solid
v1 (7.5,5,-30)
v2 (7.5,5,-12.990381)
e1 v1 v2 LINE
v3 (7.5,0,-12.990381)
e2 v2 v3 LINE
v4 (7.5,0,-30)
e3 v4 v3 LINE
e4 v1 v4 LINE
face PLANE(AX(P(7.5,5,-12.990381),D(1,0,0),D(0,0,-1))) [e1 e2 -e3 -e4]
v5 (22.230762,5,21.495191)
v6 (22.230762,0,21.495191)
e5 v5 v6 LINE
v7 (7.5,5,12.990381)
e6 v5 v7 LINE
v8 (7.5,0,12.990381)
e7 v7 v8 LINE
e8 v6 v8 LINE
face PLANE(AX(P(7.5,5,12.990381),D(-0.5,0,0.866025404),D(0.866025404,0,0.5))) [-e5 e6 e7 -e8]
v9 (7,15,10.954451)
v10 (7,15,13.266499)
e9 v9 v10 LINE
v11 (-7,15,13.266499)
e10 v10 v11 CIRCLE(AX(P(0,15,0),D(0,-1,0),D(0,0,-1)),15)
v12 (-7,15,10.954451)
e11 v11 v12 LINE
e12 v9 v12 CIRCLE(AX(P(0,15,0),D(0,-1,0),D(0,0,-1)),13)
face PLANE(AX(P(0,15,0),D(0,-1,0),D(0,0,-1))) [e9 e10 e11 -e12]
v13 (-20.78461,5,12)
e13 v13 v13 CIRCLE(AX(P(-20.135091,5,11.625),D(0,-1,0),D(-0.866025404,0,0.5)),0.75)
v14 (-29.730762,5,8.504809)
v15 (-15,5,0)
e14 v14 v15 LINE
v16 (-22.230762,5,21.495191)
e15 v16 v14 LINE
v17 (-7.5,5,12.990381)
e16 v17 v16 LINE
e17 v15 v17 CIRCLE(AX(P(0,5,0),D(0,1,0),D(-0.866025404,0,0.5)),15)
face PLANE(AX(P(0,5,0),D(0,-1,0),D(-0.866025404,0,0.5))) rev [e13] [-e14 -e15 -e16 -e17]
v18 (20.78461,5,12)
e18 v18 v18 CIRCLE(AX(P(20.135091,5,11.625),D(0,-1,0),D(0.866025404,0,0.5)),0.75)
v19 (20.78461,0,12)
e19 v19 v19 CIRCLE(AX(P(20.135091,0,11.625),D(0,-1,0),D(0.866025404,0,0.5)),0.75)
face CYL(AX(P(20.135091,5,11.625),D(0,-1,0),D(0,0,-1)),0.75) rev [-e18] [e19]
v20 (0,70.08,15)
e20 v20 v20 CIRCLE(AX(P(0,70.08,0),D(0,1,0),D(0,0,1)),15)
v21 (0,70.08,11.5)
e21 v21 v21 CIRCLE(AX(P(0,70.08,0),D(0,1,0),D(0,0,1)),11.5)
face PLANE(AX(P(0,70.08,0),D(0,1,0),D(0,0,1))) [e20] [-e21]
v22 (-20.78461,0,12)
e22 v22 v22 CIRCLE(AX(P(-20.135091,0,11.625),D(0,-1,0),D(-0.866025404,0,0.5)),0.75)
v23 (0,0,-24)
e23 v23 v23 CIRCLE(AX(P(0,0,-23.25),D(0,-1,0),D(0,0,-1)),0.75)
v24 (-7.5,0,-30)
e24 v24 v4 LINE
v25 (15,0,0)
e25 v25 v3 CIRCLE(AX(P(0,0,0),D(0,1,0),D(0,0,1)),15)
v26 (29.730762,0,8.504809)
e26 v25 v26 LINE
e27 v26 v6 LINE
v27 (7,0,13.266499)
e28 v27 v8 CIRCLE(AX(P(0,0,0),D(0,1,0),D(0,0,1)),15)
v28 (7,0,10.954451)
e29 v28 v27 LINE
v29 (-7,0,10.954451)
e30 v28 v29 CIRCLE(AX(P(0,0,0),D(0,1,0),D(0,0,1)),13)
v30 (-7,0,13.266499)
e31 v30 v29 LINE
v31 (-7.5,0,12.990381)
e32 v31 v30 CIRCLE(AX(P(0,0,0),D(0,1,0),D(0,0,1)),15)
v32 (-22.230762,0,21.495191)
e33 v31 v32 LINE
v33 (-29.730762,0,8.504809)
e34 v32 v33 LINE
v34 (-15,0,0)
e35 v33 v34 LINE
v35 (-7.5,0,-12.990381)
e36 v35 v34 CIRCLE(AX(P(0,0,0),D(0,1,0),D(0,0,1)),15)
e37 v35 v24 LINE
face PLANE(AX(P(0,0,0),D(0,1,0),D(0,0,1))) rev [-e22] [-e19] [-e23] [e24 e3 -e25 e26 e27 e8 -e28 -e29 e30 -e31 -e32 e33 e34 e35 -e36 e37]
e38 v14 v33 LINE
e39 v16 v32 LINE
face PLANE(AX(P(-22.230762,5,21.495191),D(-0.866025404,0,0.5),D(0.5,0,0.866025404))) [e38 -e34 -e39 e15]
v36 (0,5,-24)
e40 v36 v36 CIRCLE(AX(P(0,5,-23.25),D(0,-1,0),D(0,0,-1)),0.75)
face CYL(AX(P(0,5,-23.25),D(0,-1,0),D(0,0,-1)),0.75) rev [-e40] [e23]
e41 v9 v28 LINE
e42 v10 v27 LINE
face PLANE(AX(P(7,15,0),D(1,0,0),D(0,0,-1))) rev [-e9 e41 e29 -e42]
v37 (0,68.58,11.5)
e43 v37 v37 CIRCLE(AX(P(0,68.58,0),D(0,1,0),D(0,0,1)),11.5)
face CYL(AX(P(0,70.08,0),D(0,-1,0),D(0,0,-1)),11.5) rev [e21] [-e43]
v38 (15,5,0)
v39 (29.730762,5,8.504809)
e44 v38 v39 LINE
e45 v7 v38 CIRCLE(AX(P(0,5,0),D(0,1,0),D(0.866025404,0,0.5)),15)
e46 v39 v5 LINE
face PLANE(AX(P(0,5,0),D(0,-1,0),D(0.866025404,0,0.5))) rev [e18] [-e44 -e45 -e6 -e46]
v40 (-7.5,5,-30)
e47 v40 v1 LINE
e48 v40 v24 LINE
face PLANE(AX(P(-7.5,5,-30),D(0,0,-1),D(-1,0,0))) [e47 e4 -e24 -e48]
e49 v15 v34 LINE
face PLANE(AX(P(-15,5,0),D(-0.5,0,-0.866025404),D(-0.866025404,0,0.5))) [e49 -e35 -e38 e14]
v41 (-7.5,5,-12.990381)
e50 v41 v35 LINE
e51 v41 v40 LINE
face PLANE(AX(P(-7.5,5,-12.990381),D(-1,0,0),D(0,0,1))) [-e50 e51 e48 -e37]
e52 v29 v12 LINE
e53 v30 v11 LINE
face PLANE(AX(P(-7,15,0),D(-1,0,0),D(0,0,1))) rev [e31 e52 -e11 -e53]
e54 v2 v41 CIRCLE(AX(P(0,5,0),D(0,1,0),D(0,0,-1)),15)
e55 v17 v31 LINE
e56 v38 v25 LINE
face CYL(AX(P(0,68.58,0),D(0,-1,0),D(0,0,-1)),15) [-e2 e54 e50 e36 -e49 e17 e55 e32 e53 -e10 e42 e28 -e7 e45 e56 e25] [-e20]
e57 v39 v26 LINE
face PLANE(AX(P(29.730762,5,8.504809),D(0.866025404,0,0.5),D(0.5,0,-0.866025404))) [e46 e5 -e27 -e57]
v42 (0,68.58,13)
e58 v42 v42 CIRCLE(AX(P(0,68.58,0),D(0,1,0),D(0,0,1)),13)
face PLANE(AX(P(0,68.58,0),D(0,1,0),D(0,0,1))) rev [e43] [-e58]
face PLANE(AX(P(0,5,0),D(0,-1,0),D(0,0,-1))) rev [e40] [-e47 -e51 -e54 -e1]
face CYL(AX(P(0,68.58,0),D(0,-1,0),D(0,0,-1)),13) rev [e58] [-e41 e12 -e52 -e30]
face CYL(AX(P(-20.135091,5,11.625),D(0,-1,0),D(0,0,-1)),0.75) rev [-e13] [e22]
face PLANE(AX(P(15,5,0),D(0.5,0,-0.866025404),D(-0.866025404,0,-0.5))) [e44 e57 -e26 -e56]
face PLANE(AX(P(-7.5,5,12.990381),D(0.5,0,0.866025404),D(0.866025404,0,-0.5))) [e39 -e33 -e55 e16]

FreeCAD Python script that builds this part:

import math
import FreeCAD as App
import Part
import Sketcher


def add_polygon(sketch, points):
    """Adds a closed chain of lines whose ends are joined by coincident constraints."""
    first, n = sketch.GeometryCount, len(points)
    for a, b in zip(points, points[1:] + points[:1]):
        sketch.addGeometry(Part.LineSegment(App.Vector(*a, 0), App.Vector(*b, 0)), False)
    for i in range(n):
        sketch.addConstraint(Sketcher.Constraint("Coincident", first + i, 2, first + (i + 1) % n, 1))

doc = App.newDocument("Part")
body = doc.addObject("PartDesign::Body", "Body")

# Sketch on XZ plane
sketch1 = doc.addObject("Sketcher::SketchObject", "Sketch")
body.addObject(sketch1)
sketch1.AttachmentSupport = (doc.XZ_Plane, [""])
sketch1.MapMode = "FlatFace"
sketch1.addGeometry([
    Part.Circle(App.Vector(0, 0, 0), App.Vector(0, 0, 1), 15),
    Part.Circle(App.Vector(0, 0, 0), App.Vector(0, 0, 1), 13),
], False)
sketch1.addConstraint([
    Sketcher.Constraint("Coincident", 0, 3, -1, 1),
    Sketcher.Constraint("Coincident", 1, 3, -1, 1),
    Sketcher.Constraint("Diameter", 0, 30.0),
    Sketcher.Constraint("Diameter", 1, 26.0),
])
pad1 = doc.addObject("PartDesign::Pad", "Pad")
body.addObject(pad1)
pad1.Profile = sketch1
pad1.Length = 68.58
pad1.Reversed = True

# Sketch on XZ plane
sketch2 = doc.addObject("Sketcher::SketchObject", "Sketch001")
body.addObject(sketch2)
sketch2.AttachmentSupport = (doc.XZ_Plane, [""])
sketch2.MapMode = "FlatFace"
sketch2.AttachmentOffset = App.Placement(App.Vector(0, 0, -68.58), App.Rotation())
sketch2.addGeometry([
    Part.Circle(App.Vector(0, 0, 0), App.Vector(0, 0, 1), 15),
    Part.Circle(App.Vector(0, 0, 0), App.Vector(0, 0, 1), 12),
], False)
sketch2.addConstraint([
    Sketcher.Constraint("Coincident", 0, 3, -1, 1),
    Sketcher.Constraint("Coincident", 1, 3, -1, 1),
    Sketcher.Constraint("Diameter", 0, 30.0),
    Sketcher.Constraint("Diameter", 1, 23.0),
])
pad2 = doc.addObject("PartDesign::Pad", "Pad001")
body.addObject(pad2)
pad2.Profile = sketch2
pad2.Length = 1.5
pad2.Reversed = True

# Sketch on XZ plane
sketch3 = doc.addObject("Sketcher::SketchObject", "Sketch002")
body.addObject(sketch3)
sketch3.AttachmentSupport = (doc.XZ_Plane, [""])
sketch3.MapMode = "FlatFace"
add_polygon(sketch3, [(-7, 16), (-7, 0), (7, 0), (7, 16)])  # lines 0-3
sketch3.addConstraint([
    Sketcher.Constraint("Vertical", 0),
    Sketcher.Constraint("Horizontal", 1),
    Sketcher.Constraint("Vertical", 2),
    Sketcher.Constraint("Horizontal", 3),
    Sketcher.Constraint("Symmetric", 0, 2, 1, 2, -1, 1),
    Sketcher.Constraint("DistanceX", 1, 1, 1, 2, 14.0),
    Sketcher.Constraint("DistanceY", 0, 2, 0, 1, 15.59137),
])
pocket1 = doc.addObject("PartDesign::Pocket", "Pocket")
body.addObject(pocket1)
pocket1.Profile = sketch3
pocket1.Length = 15

# Sketch on XZ plane
sketch4 = doc.addObject("Sketcher::SketchObject", "Sketch003")
body.addObject(sketch4)
sketch4.AttachmentSupport = (doc.XZ_Plane, [""])
sketch4.MapMode = "FlatFace"
sketch4.addGeometry([
    Part.LineSegment(App.Vector(-7.5, -13, 0), App.Vector(-7.5, -30, 0)),  # 0
    Part.LineSegment(App.Vector(-7.5, -30, 0), App.Vector(7.5, -30, 0)),  # 1
    Part.LineSegment(App.Vector(7.5, -30, 0), App.Vector(7.5, -13, 0)),  # 2
    Part.ArcOfCircle(Part.Circle(App.Vector(0, 0, 0), App.Vector(0, 0, 1), 15), math.radians(-120), math.radians(-60)),  # 3
    Part.Circle(App.Vector(0, -23.2, 0), App.Vector(0, 0, 1), 0.8),  # 4
], False)
sketch4.addConstraint([
    Sketcher.Constraint("Coincident", 0, 2, 1, 1),
    Sketcher.Constraint("Coincident", 1, 2, 2, 1),
    Sketcher.Constraint("Coincident", 2, 2, 3, 2),
    Sketcher.Constraint("Coincident", 3, 1, 0, 1),
    Sketcher.Constraint("Vertical", 0),
    Sketcher.Constraint("Horizontal", 1),
    Sketcher.Constraint("Vertical", 2),
    Sketcher.Constraint("Coincident", 3, 3, -1, 1),
    Sketcher.Constraint("PointOnObject", 4, 3, -2),
    Sketcher.Constraint("Horizontal", 2, 2, 3, 1),
    Sketcher.Constraint("Radius", 3, 15.0),
    Sketcher.Constraint("Diameter", 4, 1.5),
    Sketcher.Constraint("DistanceX", 1, 1, 1, 2, 15.0),
    Sketcher.Constraint("DistanceY", 0, 2, -1, 1, 30.0),
    Sketcher.Constraint("DistanceY", 4, 3, -1, 1, 23.25),
])
pad3 = doc.addObject("PartDesign::Pad", "Pad002")
body.addObject(pad3)
pad3.Profile = sketch4
pad3.Length = 5
pad3.Reversed = True
doc.recompute()

polarpattern = doc.addObject("PartDesign::PolarPattern", "PolarPattern")
body.addObject(polarpattern)
polarpattern.Originals = [pad3]
polarpattern.Axis = (doc.Y_Axis, [""])
polarpattern.Angle = 360
polarpattern.Occurrences = 3
body.Tip = polarpattern

doc.recompute()
